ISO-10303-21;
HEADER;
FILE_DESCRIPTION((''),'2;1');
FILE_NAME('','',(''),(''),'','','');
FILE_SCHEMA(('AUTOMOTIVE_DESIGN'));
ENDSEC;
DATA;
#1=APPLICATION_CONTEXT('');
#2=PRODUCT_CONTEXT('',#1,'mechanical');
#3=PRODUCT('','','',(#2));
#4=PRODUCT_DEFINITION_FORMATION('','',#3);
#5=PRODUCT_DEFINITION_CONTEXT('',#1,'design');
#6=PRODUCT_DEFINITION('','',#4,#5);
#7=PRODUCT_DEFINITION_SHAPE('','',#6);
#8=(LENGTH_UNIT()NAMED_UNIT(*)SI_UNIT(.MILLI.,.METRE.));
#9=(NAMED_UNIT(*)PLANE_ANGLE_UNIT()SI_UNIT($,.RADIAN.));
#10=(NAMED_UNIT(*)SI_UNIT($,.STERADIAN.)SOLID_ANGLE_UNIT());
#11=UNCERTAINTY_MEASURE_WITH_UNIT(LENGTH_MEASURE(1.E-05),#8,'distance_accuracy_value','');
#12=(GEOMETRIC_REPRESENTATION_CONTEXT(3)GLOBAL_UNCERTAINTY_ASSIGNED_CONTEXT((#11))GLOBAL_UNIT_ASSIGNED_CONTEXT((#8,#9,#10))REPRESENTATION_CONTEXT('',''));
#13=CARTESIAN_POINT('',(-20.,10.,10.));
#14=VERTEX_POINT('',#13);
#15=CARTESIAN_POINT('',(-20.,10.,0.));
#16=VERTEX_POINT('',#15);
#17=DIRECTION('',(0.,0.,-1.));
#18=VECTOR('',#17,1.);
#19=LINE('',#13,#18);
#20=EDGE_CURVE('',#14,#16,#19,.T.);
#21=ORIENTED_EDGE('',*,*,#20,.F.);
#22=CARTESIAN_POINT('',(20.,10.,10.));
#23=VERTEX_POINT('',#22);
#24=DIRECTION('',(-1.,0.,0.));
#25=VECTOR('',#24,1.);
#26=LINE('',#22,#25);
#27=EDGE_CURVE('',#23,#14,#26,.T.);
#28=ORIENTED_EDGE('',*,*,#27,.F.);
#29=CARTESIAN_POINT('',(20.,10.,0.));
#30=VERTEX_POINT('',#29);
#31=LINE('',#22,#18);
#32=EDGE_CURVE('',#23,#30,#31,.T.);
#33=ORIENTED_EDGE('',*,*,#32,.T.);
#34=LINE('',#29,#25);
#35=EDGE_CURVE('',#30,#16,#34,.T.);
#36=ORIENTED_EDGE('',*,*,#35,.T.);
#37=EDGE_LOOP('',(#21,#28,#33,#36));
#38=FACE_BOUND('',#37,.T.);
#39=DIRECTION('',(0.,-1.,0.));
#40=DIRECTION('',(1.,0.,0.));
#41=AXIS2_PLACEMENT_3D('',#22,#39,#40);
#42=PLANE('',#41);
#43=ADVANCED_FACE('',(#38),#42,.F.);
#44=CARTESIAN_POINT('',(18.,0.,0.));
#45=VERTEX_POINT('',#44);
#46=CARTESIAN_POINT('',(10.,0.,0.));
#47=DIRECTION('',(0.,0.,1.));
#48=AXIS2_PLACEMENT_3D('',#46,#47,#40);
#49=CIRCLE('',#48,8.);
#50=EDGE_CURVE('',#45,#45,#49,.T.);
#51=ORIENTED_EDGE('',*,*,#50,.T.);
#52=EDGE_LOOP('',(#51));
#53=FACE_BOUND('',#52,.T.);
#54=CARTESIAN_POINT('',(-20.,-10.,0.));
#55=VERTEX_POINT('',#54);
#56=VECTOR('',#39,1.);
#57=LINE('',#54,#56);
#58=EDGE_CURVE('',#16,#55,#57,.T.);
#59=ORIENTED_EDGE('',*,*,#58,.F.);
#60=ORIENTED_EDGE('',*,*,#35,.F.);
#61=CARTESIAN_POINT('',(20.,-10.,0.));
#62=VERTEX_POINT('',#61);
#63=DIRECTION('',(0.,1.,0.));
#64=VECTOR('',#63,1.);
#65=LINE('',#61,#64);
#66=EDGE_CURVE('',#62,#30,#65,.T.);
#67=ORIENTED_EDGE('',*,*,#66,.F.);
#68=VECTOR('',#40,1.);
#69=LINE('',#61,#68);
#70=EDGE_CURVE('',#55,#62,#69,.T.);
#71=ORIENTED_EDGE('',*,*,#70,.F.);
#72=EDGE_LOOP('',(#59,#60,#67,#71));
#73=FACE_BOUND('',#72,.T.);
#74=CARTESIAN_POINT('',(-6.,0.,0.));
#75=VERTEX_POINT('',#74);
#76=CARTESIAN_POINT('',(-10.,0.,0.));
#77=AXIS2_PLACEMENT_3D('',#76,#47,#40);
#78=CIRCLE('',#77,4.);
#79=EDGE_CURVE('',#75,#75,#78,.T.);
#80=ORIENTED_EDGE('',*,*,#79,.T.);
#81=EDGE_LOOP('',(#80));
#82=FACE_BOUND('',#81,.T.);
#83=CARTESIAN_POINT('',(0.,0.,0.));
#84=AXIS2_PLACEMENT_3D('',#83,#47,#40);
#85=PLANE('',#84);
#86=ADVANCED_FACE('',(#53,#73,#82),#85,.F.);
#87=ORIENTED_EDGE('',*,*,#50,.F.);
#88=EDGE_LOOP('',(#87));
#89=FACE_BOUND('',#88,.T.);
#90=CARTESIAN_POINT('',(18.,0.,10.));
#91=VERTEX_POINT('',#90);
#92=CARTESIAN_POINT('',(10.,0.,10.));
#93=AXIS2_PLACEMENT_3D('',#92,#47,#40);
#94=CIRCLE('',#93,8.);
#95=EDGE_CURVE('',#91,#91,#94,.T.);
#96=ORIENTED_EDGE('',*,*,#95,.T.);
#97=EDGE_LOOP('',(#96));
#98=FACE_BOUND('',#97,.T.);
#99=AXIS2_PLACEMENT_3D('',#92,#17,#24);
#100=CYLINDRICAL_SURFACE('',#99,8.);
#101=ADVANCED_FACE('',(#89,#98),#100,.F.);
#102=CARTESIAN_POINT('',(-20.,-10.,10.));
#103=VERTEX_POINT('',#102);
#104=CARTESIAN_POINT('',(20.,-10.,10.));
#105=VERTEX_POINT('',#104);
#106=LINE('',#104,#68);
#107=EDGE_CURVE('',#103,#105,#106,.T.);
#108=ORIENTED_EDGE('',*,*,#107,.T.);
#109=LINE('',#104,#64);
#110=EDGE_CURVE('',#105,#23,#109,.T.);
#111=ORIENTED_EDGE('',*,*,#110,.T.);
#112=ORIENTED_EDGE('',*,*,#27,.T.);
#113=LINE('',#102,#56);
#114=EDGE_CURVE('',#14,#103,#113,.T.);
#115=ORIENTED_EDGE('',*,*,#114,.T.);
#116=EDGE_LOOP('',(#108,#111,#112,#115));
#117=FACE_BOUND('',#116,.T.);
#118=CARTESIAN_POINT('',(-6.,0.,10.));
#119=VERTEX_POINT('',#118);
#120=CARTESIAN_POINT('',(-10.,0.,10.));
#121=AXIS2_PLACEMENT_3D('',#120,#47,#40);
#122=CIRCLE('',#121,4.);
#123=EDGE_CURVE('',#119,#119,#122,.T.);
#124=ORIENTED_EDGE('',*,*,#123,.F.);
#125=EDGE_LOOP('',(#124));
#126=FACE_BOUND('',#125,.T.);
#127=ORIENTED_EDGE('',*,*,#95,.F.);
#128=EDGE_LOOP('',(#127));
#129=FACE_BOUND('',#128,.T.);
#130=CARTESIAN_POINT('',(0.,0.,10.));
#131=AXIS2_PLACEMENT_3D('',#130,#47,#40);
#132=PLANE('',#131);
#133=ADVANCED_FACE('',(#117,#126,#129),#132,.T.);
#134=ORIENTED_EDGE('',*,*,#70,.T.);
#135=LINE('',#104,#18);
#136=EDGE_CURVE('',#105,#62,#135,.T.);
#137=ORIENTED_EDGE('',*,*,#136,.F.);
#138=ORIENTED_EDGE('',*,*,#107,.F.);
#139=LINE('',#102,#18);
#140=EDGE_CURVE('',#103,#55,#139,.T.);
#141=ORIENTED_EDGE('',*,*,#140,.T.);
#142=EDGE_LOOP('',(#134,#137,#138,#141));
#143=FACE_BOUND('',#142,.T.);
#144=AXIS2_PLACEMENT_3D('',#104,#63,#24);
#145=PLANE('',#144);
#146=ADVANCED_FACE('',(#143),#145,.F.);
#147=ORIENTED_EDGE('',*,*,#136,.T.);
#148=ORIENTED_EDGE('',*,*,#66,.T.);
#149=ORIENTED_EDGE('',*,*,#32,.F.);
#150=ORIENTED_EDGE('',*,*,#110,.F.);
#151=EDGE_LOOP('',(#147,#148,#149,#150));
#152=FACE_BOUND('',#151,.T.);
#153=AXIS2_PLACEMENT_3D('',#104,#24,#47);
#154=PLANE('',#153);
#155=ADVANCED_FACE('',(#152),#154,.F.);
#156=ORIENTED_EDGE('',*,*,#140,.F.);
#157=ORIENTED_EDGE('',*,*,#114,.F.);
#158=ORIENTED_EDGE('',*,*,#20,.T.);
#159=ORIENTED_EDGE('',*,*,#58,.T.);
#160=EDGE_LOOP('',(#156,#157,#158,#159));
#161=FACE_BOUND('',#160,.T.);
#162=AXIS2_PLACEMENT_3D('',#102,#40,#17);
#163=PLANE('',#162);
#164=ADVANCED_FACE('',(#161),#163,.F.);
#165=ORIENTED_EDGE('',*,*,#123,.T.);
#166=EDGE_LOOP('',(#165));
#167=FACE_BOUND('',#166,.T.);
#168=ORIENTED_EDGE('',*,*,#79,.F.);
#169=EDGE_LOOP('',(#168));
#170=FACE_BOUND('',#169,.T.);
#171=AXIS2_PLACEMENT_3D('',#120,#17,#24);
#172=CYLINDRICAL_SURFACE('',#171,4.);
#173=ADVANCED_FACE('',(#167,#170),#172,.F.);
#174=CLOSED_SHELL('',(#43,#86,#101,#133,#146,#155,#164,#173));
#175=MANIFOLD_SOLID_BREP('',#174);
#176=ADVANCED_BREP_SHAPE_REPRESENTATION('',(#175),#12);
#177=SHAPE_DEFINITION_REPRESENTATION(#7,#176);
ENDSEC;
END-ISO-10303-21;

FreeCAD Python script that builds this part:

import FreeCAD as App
import Part
import Sketcher
from FreeCAD import Vector
Q = App.Units.Quantity


def add_polygon(sketch, points):
    """Adds a closed chain of lines whose ends are joined by coincident constraints."""
    first, n = sketch.GeometryCount, len(points)
    for a, b in zip(points, points[1:] + points[:1]):
        sketch.addGeometry(Part.LineSegment(App.Vector(*a, 0), App.Vector(*b, 0)), False)
    for i in range(n):
        sketch.addConstraint(Sketcher.Constraint("Coincident", first + i, 2, first + (i + 1) % n, 1))

doc = App.newDocument("Part")
params = doc.addObject("Spreadsheet::Sheet", "Params")
for row, (alias, value) in enumerate([
    ("sketch1_diameter", "8 mm"),
    ("sketch1_diameter2", "16 mm"),
    ("sketch1_width", "40 mm"),
    ("sketch1_height", "20 mm"),
    ("pad1_length", "10 mm"),
], start=1):
    params.set(f"A{row}", alias)
    params.set(f"B{row}", "=" + value)
    params.setAlias(f"B{row}", alias)

body = doc.addObject("PartDesign::Body", "Body")

# Sketch on XY plane
sketch1 = body.newObject("Sketcher::SketchObject", "Sketch")
sketch1.AttachmentSupport = (doc.getObject("XY_Plane"), [""])
sketch1.MapMode = "FlatFace"
add_polygon(sketch1, [(-20, 10), (-20, -10), (20, -10), (20, 10)])  # lines 0-3
sketch1.addGeometry(Part.Circle(Vector(-10, 0, 0), Vector(0, 0, 1), 4), False)  # 4
sketch1.addGeometry(Part.Circle(Vector(10, 0, 0), Vector(0, 0, 1), 8), False)  # 5
sketch1.addConstraint(Sketcher.Constraint("Vertical", 0))
sketch1.addConstraint(Sketcher.Constraint("Horizontal", 1))
sketch1.addConstraint(Sketcher.Constraint("Vertical", 2))
sketch1.addConstraint(Sketcher.Constraint("Horizontal", 3))
sketch1.addConstraint(Sketcher.Constraint("Symmetric", 4, 3, 5, 3, -1, 1))
sketch1.addConstraint(Sketcher.Constraint("Symmetric", 0, 2, 2, 2, -1, 1))
sketch1.addConstraint(Sketcher.Constraint("PointOnObject", 4, 3, -1))
sketch1.addConstraint(Sketcher.Constraint("Diameter", 4, Q("8 mm")))
sketch1.addConstraint(Sketcher.Constraint("Diameter", 5, Q("16 mm")))
sketch1.addConstraint(Sketcher.Constraint("DistanceX", 1, 1, 1, 2, Q("40 mm")))
sketch1.addConstraint(Sketcher.Constraint("DistanceY", 0, 2, 0, 1, Q("20 mm")))
sketch1.addConstraint(Sketcher.Constraint("DistanceX", 4, 3, -1, 1, Q("10 mm")))
sketch1.setExpression("Constraints[11]", "Params.sketch1_diameter")
sketch1.setExpression("Constraints[12]", "Params.sketch1_diameter2")
sketch1.setExpression("Constraints[13]", "Params.sketch1_width")
sketch1.setExpression("Constraints[14]", "Params.sketch1_height")
pad1 = body.newObject("PartDesign::Pad", "Pad")
pad1.Profile = sketch1
pad1.setExpression("Length", "Params.pad1_length")

doc.recompute()
